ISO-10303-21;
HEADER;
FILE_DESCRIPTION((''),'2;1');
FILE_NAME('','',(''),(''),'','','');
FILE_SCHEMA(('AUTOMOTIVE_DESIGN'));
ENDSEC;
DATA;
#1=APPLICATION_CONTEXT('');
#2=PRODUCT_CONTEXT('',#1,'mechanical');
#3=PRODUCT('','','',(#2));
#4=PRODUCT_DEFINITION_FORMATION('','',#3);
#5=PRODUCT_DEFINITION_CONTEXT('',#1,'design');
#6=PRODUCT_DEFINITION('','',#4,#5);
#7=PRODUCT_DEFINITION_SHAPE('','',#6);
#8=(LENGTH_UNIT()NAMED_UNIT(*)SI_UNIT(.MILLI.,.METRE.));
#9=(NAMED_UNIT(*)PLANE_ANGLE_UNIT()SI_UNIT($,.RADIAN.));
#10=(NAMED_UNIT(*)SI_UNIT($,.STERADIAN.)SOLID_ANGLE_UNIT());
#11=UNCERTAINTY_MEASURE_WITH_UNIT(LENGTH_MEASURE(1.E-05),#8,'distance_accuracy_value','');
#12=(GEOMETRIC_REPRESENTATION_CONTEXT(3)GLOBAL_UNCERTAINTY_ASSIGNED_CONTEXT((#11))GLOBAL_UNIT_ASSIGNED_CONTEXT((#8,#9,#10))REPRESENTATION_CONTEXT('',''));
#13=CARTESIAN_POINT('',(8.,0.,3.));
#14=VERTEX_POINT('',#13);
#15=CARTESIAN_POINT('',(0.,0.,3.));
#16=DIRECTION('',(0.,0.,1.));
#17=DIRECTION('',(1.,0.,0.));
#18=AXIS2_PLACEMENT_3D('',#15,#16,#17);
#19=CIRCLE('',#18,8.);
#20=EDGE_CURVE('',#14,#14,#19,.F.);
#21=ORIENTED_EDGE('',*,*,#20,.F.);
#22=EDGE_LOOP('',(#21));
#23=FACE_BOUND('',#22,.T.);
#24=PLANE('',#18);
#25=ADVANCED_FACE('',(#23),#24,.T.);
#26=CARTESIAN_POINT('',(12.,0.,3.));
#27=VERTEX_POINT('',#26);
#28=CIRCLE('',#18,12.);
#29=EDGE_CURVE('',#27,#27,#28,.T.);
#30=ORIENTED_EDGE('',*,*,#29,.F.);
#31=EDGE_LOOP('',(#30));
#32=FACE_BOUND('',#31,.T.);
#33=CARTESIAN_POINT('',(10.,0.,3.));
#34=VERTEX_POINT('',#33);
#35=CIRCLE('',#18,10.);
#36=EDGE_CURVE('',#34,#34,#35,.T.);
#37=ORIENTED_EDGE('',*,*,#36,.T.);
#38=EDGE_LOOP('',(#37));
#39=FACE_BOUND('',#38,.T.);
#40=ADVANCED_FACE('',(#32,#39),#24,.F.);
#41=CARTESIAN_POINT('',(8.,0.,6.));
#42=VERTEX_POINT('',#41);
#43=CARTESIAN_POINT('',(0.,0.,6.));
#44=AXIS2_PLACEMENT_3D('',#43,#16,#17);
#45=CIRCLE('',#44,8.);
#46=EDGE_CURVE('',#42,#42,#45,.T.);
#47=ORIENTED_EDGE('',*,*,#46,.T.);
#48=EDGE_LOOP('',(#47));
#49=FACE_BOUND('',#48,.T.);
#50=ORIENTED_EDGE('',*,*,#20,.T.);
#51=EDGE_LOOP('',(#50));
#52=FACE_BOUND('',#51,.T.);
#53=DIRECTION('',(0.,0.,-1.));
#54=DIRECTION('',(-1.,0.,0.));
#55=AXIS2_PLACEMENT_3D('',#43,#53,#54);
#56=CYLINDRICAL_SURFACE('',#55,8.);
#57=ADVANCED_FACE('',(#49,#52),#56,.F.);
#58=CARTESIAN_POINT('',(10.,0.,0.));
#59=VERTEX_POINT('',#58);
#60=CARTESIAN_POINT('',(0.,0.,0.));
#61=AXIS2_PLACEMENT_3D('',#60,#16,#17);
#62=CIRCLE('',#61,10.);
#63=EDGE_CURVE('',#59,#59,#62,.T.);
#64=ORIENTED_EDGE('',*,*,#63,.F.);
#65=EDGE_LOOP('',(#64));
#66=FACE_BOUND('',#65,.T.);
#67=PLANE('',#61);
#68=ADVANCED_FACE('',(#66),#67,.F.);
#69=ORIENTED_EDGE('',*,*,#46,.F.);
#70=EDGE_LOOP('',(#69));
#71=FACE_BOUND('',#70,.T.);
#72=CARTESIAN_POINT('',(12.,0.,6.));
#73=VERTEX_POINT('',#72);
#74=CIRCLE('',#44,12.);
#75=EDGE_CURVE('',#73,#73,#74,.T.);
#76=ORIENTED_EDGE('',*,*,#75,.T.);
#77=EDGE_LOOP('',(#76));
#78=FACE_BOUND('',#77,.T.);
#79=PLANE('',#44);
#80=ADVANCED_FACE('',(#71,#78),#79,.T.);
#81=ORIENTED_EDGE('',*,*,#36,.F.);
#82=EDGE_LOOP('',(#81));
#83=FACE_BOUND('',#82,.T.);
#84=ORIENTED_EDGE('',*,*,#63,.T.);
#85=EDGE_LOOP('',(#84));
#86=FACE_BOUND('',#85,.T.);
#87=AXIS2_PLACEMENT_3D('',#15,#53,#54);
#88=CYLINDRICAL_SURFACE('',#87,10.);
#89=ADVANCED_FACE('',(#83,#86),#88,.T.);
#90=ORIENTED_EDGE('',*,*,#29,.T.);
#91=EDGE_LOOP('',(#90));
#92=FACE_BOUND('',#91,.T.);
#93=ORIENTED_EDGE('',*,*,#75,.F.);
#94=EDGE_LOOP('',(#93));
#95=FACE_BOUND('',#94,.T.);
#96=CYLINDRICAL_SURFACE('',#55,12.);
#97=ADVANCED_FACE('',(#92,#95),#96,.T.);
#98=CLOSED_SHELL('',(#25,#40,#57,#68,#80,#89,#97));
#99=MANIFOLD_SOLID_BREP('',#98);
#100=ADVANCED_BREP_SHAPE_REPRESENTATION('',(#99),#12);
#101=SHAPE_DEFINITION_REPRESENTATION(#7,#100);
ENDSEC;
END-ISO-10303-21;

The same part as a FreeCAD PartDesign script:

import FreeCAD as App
import Part
import Sketcher

V = App.Vector
Q = App.Units.Quantity

doc = App.newDocument("Part")
body = doc.addObject("PartDesign::Body", "Body")

# Sketch on XY plane
sketch1 = body.newObject("Sketcher::SketchObject", "Sketch")
sketch1.AttachmentSupport = (doc.getObject("XY_Plane"), [""])
sketch1.MapMode = "FlatFace"
sketch1.addGeometry(Part.Circle(V(0, 0, 0), V(0, 0, 1), 10), False)
sketch1.addConstraint([
    Sketcher.Constraint("Coincident", 0, 3, -1, 1),
    Sketcher.Constraint("Diameter", 0, Q("20 mm")),
])
pad1 = body.newObject("PartDesign::Pad", "Pad")
pad1.Profile = sketch1
pad1.Length = 3

# Sketch on XY plane
sketch2 = body.newObject("Sketcher::SketchObject", "Sketch001")
sketch2.AttachmentSupport = (doc.getObject("XY_Plane"), [""])
sketch2.MapMode = "FlatFace"
sketch2.AttachmentOffset = App.Placement(V(0, 0, 3), App.Rotation())
sketch2.addGeometry([
    Part.Circle(V(0, 0, 0), V(0, 0, 1), 12),
    Part.Circle(V(0, 0, 0), V(0, 0, 1), 8),
], False)
sketch2.addConstraint([
    Sketcher.Constraint("Coincident", 0, 3, -1, 1),
    Sketcher.Constraint("Coincident", 1, 3, -1, 1),
    Sketcher.Constraint("Diameter", 0, Q("24 mm")),
    Sketcher.Constraint("Diameter", 1, Q("16 mm")),
])
pad2 = body.newObject("PartDesign::Pad", "Pad001")
pad2.Profile = sketch2
pad2.Length = 3

doc.recompute()
